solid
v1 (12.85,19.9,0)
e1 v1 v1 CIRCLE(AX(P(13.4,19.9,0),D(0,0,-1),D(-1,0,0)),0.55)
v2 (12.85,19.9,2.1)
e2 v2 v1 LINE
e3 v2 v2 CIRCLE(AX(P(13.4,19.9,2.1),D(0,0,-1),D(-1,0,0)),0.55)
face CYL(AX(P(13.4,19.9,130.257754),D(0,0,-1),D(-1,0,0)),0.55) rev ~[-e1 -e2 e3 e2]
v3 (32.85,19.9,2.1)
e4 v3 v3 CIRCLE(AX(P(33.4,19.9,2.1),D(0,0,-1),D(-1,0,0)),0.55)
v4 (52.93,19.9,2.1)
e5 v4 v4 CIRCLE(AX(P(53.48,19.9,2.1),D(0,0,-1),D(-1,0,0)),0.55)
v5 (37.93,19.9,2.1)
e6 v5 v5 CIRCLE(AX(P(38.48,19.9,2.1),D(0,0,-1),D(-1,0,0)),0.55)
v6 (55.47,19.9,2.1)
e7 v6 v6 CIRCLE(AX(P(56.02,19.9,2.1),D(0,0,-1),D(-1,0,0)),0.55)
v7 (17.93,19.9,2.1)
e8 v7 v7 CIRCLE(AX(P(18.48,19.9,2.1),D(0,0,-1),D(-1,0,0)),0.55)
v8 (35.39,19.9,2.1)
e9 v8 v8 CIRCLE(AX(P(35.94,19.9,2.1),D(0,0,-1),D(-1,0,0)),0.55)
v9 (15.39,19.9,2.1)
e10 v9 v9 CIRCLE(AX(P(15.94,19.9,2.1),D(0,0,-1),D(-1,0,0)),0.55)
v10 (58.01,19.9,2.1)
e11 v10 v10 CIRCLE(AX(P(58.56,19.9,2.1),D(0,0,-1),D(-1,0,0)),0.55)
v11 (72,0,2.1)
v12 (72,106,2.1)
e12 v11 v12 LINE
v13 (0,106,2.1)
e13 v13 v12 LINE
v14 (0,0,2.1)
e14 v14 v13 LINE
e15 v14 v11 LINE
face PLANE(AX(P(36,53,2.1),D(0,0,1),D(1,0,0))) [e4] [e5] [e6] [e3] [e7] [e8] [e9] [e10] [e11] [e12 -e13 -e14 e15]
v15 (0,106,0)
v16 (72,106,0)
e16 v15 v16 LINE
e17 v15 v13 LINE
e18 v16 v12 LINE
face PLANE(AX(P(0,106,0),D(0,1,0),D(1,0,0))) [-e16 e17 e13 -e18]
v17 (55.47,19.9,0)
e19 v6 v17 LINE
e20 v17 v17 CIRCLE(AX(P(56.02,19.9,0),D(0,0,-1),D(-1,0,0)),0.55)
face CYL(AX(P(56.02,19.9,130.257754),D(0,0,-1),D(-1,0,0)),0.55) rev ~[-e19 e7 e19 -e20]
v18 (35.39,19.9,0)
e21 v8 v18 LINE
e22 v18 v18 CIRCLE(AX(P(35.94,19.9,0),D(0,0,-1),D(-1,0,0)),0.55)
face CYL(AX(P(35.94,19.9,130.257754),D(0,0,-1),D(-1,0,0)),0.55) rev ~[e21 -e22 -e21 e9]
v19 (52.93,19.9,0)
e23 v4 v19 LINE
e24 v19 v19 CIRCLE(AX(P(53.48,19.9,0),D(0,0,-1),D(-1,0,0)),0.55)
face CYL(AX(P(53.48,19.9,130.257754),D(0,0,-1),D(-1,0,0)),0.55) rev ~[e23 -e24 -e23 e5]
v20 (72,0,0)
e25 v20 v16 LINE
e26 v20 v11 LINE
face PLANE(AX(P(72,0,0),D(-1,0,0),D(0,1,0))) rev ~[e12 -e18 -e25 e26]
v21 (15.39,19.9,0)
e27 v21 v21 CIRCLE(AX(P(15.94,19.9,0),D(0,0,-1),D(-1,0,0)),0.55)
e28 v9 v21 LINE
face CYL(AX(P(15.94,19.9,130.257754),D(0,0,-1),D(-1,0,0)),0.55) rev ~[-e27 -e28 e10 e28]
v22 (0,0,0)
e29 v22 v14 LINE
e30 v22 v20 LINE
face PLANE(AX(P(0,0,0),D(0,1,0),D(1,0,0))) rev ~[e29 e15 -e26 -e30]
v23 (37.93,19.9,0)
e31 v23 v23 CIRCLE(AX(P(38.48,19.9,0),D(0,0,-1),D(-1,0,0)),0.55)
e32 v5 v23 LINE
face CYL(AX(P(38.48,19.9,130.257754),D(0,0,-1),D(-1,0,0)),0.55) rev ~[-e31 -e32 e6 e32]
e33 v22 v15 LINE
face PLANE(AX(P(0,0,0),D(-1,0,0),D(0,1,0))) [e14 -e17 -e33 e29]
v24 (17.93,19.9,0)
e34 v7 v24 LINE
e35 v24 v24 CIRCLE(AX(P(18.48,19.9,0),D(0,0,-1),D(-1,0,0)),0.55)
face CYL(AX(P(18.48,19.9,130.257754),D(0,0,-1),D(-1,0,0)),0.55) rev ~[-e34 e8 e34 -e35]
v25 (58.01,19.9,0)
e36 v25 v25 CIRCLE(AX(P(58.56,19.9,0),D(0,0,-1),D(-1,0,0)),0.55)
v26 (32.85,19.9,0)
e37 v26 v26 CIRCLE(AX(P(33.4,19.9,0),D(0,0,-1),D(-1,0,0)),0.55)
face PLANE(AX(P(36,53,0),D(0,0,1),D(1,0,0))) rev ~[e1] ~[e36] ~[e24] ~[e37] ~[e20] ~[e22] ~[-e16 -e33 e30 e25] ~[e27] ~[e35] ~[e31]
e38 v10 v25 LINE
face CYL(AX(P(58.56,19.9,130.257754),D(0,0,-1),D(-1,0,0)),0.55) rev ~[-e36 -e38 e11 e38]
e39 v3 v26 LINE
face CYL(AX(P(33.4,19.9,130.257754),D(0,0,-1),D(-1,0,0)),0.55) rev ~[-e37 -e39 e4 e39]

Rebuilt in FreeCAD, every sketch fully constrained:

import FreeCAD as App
import Part
import Sketcher

V = App.Vector

doc = App.newDocument("Part")
body = doc.addObject("PartDesign::Body", "Body")

# Sketch on XY plane
sketch1 = doc.addObject("Sketcher::SketchObject", "Sketch")
body.addObject(sketch1)
sketch1.AttachmentSupport = (doc.XY_Plane, [""])
sketch1.MapMode = "FlatFace"
sketch1.addGeometry(Part.LineSegment(V(0, 106, 0), V(0, 0, 0)), False)
sketch1.addGeometry(Part.LineSegment(V(0, 0, 0), V(72, 0, 0)), False)
sketch1.addGeometry(Part.LineSegment(V(72, 0, 0), V(72, 106, 0)), False)
sketch1.addGeometry(Part.LineSegment(V(72, 106, 0), V(0, 106, 0)), False)
sketch1.addConstraint(Sketcher.Constraint("Coincident", 0, 2, 1, 1))
sketch1.addConstraint(Sketcher.Constraint("Coincident", 1, 2, 2, 1))
sketch1.addConstraint(Sketcher.Constraint("Coincident", 2, 2, 3, 1))
sketch1.addConstraint(Sketcher.Constraint("Coincident", 3, 2, 0, 1))
sketch1.addConstraint(Sketcher.Constraint("Vertical", 0))
sketch1.addConstraint(Sketcher.Constraint("Horizontal", 1))
sketch1.addConstraint(Sketcher.Constraint("Vertical", 2))
sketch1.addConstraint(Sketcher.Constraint("Horizontal", 3))
sketch1.addConstraint(Sketcher.Constraint("Coincident", 0, 2, -1, 1))
sketch1.addConstraint(Sketcher.Constraint("DistanceX", 1, 1, 1, 2, 72.0))
sketch1.addConstraint(Sketcher.Constraint("DistanceY", 0, 2, 0, 1, 106.0))
pad1 = doc.addObject("PartDesign::Pad", "Pad")
body.addObject(pad1)
pad1.Profile = sketch1
pad1.Length = 2.1

# Sketch on XY plane
sketch2 = doc.addObject("Sketcher::SketchObject", "Sketch001")
body.addObject(sketch2)
sketch2.AttachmentSupport = (doc.XY_Plane, [""])
sketch2.MapMode = "FlatFace"
sketch2.AttachmentOffset = App.Placement(V(0, 0, 2.1), App.Rotation())
sketch2.addGeometry(Part.Circle(V(13.4, 19.9, 0), V(0, 0, 1), 0.6), False)
sketch2.addGeometry(Part.Circle(V(15.9, 19.9, 0), V(0, 0, 1), 0.6), False)
sketch2.addGeometry(Part.Circle(V(18.5, 19.9, 0), V(0, 0, 1), 0.6), False)
sketch2.addGeometry(Part.Circle(V(33.4, 19.9, 0), V(0, 0, 1), 0.6), False)
sketch2.addGeometry(Part.Circle(V(35.9, 19.9, 0), V(0, 0, 1), 0.6), False)
sketch2.addGeometry(Part.Circle(V(38.5, 19.9, 0), V(0, 0, 1), 0.6), False)
sketch2.addGeometry(Part.Circle(V(53.5, 19.9, 0), V(0, 0, 1), 0.6), False)
sketch2.addGeometry(Part.Circle(V(56, 19.9, 0), V(0, 0, 1), 0.6), False)
sketch2.addGeometry(Part.Circle(V(58.6, 19.9, 0), V(0, 0, 1), 0.6), False)
sketch2.addConstraint(Sketcher.Constraint("Equal", 0, 1))
sketch2.addConstraint(Sketcher.Constraint("Equal", 1, 2))
sketch2.addConstraint(Sketcher.Constraint("Equal", 2, 3))
sketch2.addConstraint(Sketcher.Constraint("Equal", 3, 4))
sketch2.addConstraint(Sketcher.Constraint("Equal", 4, 5))
sketch2.addConstraint(Sketcher.Constraint("Equal", 5, 6))
sketch2.addConstraint(Sketcher.Constraint("Equal", 6, 7))
sketch2.addConstraint(Sketcher.Constraint("Equal", 7, 8))
sketch2.addConstraint(Sketcher.Constraint("Horizontal", 0, 3, 1, 3))
sketch2.addConstraint(Sketcher.Constraint("Horizontal", 1, 3, 2, 3))
sketch2.addConstraint(Sketcher.Constraint("Horizontal", 2, 3, 3, 3))
sketch2.addConstraint(Sketcher.Constraint("Horizontal", 3, 3, 4, 3))
sketch2.addConstraint(Sketcher.Constraint("Horizontal", 4, 3, 5, 3))
sketch2.addConstraint(Sketcher.Constraint("Horizontal", 5, 3, 6, 3))
sketch2.addConstraint(Sketcher.Constraint("Horizontal", 6, 3, 7, 3))
sketch2.addConstraint(Sketcher.Constraint("Horizontal", 7, 3, 8, 3))
sketch2.addConstraint(Sketcher.Constraint("Diameter", 0, 1.1))
sketch2.addConstraint(Sketcher.Constraint("DistanceX", 0, 3, 3, 3, 20.0))
sketch2.addConstraint(Sketcher.Constraint("DistanceX", 1, 3, 4, 3, 20.0))
sketch2.addConstraint(Sketcher.Constraint("DistanceX", 2, 3, 5, 3, 20.0))
sketch2.addConstraint(Sketcher.Constraint("DistanceX", 5, 3, 6, 3, 15.0))
sketch2.addConstraint(Sketcher.Constraint("DistanceX", -1, 1, 0, 3, 13.4))
sketch2.addConstraint(Sketcher.Constraint("DistanceY", -1, 1, 0, 3, 19.9))
sketch2.addConstraint(Sketcher.Constraint("DistanceX", -1, 1, 1, 3, 15.94))
sketch2.addConstraint(Sketcher.Constraint("DistanceX", -1, 1, 2, 3, 18.48))
sketch2.addConstraint(Sketcher.Constraint("DistanceX", -1, 1, 7, 3, 56.02))
sketch2.addConstraint(Sketcher.Constraint("DistanceX", -1, 1, 8, 3, 58.56))
doc.recompute()
hole = doc.addObject("PartDesign::Hole", "Hole")
body.addObject(hole)
hole.Profile = sketch2
hole.ThreadType = "None"
hole.Diameter = 1.1
hole.DepthType = "ThroughAll"

doc.recompute()
